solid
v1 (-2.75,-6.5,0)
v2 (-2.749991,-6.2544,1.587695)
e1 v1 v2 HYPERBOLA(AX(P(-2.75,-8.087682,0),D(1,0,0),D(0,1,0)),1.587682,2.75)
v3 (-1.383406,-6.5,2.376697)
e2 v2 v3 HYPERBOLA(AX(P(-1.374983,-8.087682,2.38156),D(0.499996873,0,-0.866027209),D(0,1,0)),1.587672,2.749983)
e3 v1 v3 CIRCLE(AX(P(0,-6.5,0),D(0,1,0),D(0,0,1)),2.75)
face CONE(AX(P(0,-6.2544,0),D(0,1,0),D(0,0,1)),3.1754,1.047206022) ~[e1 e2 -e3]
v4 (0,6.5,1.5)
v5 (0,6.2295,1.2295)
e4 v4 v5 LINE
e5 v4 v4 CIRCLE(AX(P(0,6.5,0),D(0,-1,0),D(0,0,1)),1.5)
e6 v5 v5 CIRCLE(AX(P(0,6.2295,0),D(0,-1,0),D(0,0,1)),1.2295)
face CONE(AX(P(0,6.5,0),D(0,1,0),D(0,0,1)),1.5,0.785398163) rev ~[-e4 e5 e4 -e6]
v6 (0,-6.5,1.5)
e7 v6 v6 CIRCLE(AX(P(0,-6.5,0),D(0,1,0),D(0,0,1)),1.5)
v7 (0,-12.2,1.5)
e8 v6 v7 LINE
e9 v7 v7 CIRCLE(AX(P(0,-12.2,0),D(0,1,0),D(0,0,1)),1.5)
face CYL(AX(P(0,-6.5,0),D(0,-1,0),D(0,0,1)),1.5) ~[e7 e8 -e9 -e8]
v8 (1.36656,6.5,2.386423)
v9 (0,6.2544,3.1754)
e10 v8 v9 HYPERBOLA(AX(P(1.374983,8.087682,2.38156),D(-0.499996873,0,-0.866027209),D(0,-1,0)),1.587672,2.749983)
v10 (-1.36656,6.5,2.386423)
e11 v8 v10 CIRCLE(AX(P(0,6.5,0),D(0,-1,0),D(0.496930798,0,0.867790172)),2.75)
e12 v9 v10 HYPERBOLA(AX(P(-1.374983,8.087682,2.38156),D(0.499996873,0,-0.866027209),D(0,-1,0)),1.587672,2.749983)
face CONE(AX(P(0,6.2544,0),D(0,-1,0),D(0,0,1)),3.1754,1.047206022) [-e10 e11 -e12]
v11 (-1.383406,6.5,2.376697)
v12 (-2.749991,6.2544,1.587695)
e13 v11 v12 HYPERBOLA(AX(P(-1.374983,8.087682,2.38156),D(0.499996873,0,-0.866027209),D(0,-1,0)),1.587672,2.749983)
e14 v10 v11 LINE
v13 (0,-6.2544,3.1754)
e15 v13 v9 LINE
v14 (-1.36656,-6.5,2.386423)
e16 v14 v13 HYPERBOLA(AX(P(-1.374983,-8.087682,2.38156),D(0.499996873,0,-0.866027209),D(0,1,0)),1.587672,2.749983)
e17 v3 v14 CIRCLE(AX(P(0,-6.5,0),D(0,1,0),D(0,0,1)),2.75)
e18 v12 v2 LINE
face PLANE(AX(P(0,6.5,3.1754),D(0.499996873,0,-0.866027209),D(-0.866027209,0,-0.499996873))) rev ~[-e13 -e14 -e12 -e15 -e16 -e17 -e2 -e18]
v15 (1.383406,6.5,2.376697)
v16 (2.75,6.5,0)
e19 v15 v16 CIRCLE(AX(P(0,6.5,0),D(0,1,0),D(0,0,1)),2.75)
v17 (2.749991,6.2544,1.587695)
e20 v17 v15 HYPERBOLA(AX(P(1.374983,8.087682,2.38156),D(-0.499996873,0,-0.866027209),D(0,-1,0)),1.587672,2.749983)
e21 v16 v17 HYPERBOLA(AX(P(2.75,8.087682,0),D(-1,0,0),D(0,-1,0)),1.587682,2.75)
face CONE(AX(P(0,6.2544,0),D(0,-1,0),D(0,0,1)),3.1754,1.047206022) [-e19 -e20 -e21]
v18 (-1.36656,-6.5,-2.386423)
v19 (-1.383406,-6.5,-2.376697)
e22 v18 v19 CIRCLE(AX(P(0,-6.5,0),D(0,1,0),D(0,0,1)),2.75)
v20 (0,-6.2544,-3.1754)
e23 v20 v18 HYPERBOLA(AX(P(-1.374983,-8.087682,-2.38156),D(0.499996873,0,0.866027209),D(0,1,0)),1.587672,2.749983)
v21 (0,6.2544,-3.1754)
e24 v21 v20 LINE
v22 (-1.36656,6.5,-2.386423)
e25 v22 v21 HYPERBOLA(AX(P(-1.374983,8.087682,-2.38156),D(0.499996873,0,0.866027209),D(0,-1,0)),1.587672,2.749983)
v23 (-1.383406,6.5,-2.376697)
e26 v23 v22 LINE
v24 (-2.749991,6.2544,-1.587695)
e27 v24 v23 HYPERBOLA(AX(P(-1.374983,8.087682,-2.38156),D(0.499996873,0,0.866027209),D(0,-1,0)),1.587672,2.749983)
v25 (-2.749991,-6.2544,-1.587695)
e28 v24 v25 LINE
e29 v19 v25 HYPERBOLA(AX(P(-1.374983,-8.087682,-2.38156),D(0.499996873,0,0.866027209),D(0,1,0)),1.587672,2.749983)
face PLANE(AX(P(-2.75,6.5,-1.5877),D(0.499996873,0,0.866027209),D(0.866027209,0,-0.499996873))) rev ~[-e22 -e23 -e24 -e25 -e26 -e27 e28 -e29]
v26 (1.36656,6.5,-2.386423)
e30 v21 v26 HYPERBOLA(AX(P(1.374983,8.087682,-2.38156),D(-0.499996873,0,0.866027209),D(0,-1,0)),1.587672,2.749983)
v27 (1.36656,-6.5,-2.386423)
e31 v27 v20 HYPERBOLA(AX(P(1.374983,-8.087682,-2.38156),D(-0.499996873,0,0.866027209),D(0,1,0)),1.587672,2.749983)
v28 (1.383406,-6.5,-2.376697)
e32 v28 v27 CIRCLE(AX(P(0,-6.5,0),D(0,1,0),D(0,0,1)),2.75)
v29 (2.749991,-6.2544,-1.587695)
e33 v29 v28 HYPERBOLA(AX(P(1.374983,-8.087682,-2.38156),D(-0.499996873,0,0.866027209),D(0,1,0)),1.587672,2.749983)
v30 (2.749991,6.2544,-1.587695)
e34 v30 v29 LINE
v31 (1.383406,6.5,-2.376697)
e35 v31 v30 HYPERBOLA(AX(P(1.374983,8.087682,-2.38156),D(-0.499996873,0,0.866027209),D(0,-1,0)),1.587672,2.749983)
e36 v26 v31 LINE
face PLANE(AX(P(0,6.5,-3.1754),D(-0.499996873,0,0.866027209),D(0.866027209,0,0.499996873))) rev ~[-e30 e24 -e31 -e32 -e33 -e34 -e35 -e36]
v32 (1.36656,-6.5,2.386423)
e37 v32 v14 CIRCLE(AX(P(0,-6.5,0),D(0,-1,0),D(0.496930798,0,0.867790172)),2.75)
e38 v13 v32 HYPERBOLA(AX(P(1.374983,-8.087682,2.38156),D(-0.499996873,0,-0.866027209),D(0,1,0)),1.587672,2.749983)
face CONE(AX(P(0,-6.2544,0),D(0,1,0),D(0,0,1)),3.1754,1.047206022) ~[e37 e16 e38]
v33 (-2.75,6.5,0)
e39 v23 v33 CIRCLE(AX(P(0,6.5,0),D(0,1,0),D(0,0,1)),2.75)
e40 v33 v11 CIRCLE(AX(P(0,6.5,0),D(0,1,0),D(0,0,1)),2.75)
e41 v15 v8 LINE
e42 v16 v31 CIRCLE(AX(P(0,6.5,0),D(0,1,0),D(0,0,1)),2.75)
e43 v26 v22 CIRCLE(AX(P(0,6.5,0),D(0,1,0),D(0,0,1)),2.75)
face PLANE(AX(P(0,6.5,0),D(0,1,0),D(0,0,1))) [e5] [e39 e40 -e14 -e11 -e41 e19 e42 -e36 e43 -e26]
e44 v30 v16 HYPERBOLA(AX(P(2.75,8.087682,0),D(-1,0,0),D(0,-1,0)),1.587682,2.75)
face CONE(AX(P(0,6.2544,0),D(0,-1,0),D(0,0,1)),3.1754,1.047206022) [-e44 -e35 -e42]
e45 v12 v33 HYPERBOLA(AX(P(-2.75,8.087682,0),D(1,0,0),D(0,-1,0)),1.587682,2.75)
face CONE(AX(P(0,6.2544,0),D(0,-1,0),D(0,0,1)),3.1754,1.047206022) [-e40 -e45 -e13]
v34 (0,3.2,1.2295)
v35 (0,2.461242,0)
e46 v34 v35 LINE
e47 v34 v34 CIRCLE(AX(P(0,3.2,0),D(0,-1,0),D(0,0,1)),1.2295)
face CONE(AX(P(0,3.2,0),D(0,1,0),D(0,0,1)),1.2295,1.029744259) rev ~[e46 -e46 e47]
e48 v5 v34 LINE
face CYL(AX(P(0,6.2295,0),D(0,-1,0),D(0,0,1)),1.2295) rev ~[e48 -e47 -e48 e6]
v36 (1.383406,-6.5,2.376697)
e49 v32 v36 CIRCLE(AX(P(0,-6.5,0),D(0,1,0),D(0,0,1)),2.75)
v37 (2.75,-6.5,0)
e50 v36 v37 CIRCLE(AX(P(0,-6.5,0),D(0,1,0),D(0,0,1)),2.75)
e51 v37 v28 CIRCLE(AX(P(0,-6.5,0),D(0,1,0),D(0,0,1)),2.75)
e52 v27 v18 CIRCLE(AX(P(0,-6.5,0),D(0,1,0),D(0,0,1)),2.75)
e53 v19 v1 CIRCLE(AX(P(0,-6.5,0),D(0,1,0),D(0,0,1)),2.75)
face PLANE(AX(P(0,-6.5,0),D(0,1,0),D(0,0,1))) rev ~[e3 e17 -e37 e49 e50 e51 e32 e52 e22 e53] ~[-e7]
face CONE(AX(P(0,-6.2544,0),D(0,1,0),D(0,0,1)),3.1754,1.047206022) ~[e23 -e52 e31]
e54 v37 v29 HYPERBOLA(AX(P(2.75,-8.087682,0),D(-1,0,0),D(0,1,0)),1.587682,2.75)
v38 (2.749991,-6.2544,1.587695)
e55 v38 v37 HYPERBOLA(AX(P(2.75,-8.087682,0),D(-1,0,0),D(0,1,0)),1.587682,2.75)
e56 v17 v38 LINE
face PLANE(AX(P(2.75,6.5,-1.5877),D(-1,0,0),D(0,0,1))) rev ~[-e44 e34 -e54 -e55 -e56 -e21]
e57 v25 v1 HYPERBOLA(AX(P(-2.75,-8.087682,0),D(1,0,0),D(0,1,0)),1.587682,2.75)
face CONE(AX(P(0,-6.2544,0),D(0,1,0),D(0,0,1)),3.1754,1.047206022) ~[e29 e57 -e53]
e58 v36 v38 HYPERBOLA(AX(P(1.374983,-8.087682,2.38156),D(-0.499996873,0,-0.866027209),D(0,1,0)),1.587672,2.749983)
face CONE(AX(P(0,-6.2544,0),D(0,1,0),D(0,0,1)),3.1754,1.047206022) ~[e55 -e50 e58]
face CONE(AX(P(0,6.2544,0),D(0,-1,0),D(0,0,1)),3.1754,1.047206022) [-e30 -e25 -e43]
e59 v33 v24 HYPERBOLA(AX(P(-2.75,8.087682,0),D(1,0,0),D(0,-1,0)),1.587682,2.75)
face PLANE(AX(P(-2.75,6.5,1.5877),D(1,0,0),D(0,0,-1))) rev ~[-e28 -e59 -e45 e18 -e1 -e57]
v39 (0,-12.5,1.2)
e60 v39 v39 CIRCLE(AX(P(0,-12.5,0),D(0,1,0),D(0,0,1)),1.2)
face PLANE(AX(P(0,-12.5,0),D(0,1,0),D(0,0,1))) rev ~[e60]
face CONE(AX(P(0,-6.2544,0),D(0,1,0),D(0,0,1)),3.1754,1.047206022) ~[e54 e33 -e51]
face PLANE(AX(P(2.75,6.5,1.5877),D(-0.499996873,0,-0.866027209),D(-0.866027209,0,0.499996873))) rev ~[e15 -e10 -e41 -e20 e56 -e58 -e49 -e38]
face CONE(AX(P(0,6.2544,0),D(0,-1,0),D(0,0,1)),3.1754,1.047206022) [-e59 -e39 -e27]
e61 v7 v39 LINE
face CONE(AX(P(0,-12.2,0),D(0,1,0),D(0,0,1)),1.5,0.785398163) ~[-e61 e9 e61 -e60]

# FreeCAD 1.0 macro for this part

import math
import FreeCAD as App
import Part
import Sketcher
from FreeCAD import Vector
Q = App.Units.Quantity

doc = App.newDocument("Part")
body = doc.addObject("PartDesign::Body", "Body")

sketch1 = doc.addObject("Sketcher::SketchObject", "Sketch")
body.addObject(sketch1)
sketch1.AttachmentSupport = (doc.YZ_Plane, [""])
sketch1.MapMode = "FlatFace"
sketch1.addGeometry([
    Part.LineSegment(Vector(-6.5, 2.75, 0), Vector(-6.5, 1.5, 0)),
    Part.LineSegment(Vector(-6.5, 1.5, 0), Vector(-12.2, 1.5, 0)),
    Part.LineSegment(Vector(-12.2, 1.5, 0), Vector(-12.5, 1.2, 0)),
    Part.LineSegment(Vector(-12.5, 1.2, 0), Vector(-12.5, 0, 0)),
    Part.LineSegment(Vector(-12.5, 0, 0), Vector(6.5, 0, 0)),
    Part.LineSegment(Vector(6.5, 0, 0), Vector(6.5, 2.75, 0)),
    Part.LineSegment(Vector(6.5, 2.75, 0), Vector(6.2544, 3.1754, 0)),
    Part.LineSegment(Vector(6.2544, 3.1754, 0), Vector(-6.2544, 3.1754, 0)),
    Part.LineSegment(Vector(-6.2544, 3.1754, 0), Vector(-6.5, 2.75, 0)),
], False)
sketch1.addConstraint([
    Sketcher.Constraint("Coincident", 0, 2, 1, 1),
    Sketcher.Constraint("Coincident", 1, 2, 2, 1),
    Sketcher.Constraint("Coincident", 2, 2, 3, 1),
    Sketcher.Constraint("Coincident", 3, 2, 4, 1),
    Sketcher.Constraint("Coincident", 4, 2, 5, 1),
    Sketcher.Constraint("Coincident", 5, 2, 6, 1),
    Sketcher.Constraint("Coincident", 6, 2, 7, 1),
    Sketcher.Constraint("Coincident", 7, 2, 8, 1),
    Sketcher.Constraint("Coincident", 8, 2, 0, 1),
    Sketcher.Constraint("Vertical", 0),
    Sketcher.Constraint("Horizontal", 1),
    Sketcher.Constraint("Vertical", 3),
    Sketcher.Constraint("Horizontal", 4),
    Sketcher.Constraint("Vertical", 5),
    Sketcher.Constraint("Horizontal", 7),
    Sketcher.Constraint("Symmetric", 5, 2, 8, 2, -2),
    Sketcher.Constraint("PointOnObject", 3, 2, -1),
    Sketcher.Constraint("Equal", 6, 8),
    Sketcher.Constraint("DistanceX", 2, 2, 0, 2, 6.0),
    Sketcher.Constraint("DistanceX", 0, 2, 4, 2, 13.0),
    Sketcher.Constraint("DistanceY", 5, 1, 5, 2, 2.75),
    Sketcher.Constraint("DistanceX", 2, 2, 1, 2, 0.3),
    Sketcher.Constraint("DistanceY", 2, 2, 1, 2, 0.3),
    Sketcher.Constraint("Angle", 6, Q("119.9995 deg")),
    Sketcher.Constraint("DistanceY", 3, 2, 3, 1, 1.2),
    Sketcher.Constraint("DistanceY", -1, 1, 6, 2, 3.1754),
])
revolution = doc.addObject("PartDesign::Revolution", "Revolution")
body.addObject(revolution)
revolution.Profile = sketch1
revolution.ReferenceAxis = (sketch1, ["H_Axis"])
revolution.Angle = 360

sketch2 = doc.addObject("Sketcher::SketchObject", "Sketch001")
body.addObject(sketch2)
sketch2.AttachmentSupport = (doc.XZ_Plane, [""])
sketch2.MapMode = "FlatFace"
sketch2.AttachmentOffset = App.Placement(Vector(0, 0, -6.5), App.Rotation())
sketch2.addGeometry([
    Part.ArcOfCircle(Part.Circle(Vector(0, 0, 0), Vector(0, 0, 1), 3.1754), math.radians(90), math.radians(150.000207)),
    Part.LineSegment(Vector(0, 3.1754, 0), Vector(-2.75, 1.5877, 0)),
    Part.LineSegment(Vector(2.75, 1.5877, 0), Vector(0, 3.1754, 0)),
    Part.ArcOfCircle(Part.Circle(Vector(0, 0, 0), Vector(0, 0, 1), 3.1754), math.radians(29.999793), math.radians(90)),
    Part.ArcOfCircle(Part.Circle(Vector(0, 0, 0), Vector(0, 0, 1), 3.1754), math.radians(150.000207), math.radians(209.999793)),
    Part.LineSegment(Vector(-2.75, -1.5877, 0), Vector(-2.75, 1.5877, 0)),
    Part.LineSegment(Vector(2.75, -1.5877, 0), Vector(2.75, 1.5877, 0)),
    Part.ArcOfCircle(Part.Circle(Vector(0, 0, 0), Vector(0, 0, 1), 3.1754), math.radians(-29.999793), math.radians(29.999793)),
    Part.ArcOfCircle(Part.Circle(Vector(0, 0, 0), Vector(0, 0, 1), 3.1754), math.radians(-150.000207), math.radians(-90)),
    Part.LineSegment(Vector(0, -3.1754, 0), Vector(-2.75, -1.5877, 0)),
    Part.LineSegment(Vector(0, -3.1754, 0), Vector(2.75, -1.5877, 0)),
    Part.ArcOfCircle(Part.Circle(Vector(0, 0, 0), Vector(0, 0, 1), 3.1754), math.radians(-90), math.radians(-29.999793)),
], False)
sketch2.addConstraint([
    Sketcher.Constraint("Coincident", 0, 1, 1, 1),
    Sketcher.Constraint("Coincident", 1, 2, 0, 2),
    Sketcher.Constraint("Coincident", 2, 1, 3, 1),
    Sketcher.Constraint("Coincident", 3, 2, 2, 2),
    Sketcher.Constraint("Coincident", 4, 1, 5, 2),
    Sketcher.Constraint("Coincident", 5, 1, 4, 2),
    Sketcher.Constraint("Coincident", 6, 1, 7, 1),
    Sketcher.Constraint("Coincident", 7, 2, 6, 2),
    Sketcher.Constraint("Coincident", 8, 1, 9, 2),
    Sketcher.Constraint("Coincident", 9, 1, 8, 2),
    Sketcher.Constraint("Coincident", 10, 1, 11, 1),
    Sketcher.Constraint("Coincident", 11, 2, 10, 2),
    Sketcher.Constraint("Vertical", 5),
    Sketcher.Constraint("Vertical", 6),
    Sketcher.Constraint("Coincident", 0, 3, -1, 1),
    Sketcher.Constraint("Coincident", 3, 3, -1, 1),
    Sketcher.Constraint("Coincident", 4, 3, -1, 1),
    Sketcher.Constraint("Coincident", 7, 3, -1, 1),
    Sketcher.Constraint("Coincident", 8, 3, -1, 1),
    Sketcher.Constraint("Coincident", 11, 3, -1, 1),
    Sketcher.Constraint("Coincident", 3, 2, 0, 1),
    Sketcher.Constraint("Coincident", 4, 1, 1, 2),
    Sketcher.Constraint("Coincident", 7, 2, 2, 1),
    Sketcher.Constraint("Coincident", 8, 1, 5, 1),
    Sketcher.Constraint("Coincident", 10, 1, 9, 1),
    Sketcher.Constraint("PointOnObject", 0, 1, -2),
    Sketcher.Constraint("PointOnObject", 9, 1, -2),
    Sketcher.Constraint("Parallel", 2, 9),
    Sketcher.Constraint("Parallel", 1, 10),
    Sketcher.Constraint("Angle", 1, Q("-150.0002 deg")),
    Sketcher.Constraint("Radius", 0, 3.1754),
])
pocket1 = doc.addObject("PartDesign::Pocket", "Pocket")
body.addObject(pocket1)
pocket1.Profile = sketch2
pocket1.Type = "ThroughAll"
pocket1.Reversed = True

sketch3 = doc.addObject("Sketcher::SketchObject", "Sketch002")
body.addObject(sketch3)
sketch3.AttachmentSupport = (doc.XZ_Plane, [""])
sketch3.MapMode = "FlatFace"
sketch3.AttachmentOffset = App.Placement(Vector(0, 0, -6.5), App.Rotation())
sketch3.addGeometry(Part.Circle(Vector(0, 0, 0), Vector(0, 0, 1), 1.2295), False)
sketch3.addConstraint([
    Sketcher.Constraint("Coincident", 0, 3, -1, 1),
    Sketcher.Constraint("Diameter", 0, 2.459),
])
doc.recompute()
hole = doc.addObject("PartDesign::Hole", "Hole")
body.addObject(hole)
hole.Profile = sketch3
hole.ThreadType = "None"
hole.Diameter = 2.459
hole.DepthType = "Dimension"
hole.Depth = 3.3
hole.DrillPoint = "Angled"
hole.DrillPointAngle = 118
hole.HoleCutType = "Countersink"
hole.HoleCutDiameter = 3
hole.HoleCutCountersinkAngle = 90
hole.Reversed = True

doc.recompute()
